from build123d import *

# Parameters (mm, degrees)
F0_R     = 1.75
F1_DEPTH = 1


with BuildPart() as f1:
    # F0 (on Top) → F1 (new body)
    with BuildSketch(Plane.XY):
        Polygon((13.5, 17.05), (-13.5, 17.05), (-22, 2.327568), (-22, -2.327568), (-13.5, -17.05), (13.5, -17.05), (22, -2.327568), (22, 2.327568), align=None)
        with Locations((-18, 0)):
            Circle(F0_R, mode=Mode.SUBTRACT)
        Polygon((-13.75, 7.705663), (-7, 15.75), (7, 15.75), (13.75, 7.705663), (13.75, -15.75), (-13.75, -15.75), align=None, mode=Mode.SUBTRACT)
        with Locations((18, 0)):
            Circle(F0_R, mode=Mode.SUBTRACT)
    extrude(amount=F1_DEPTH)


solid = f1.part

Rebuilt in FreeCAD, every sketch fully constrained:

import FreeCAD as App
import Part
import Sketcher
from FreeCAD import Vector
Q = App.Units.Quantity


def add_polygon(sketch, points):
    """Adds a closed chain of lines whose ends are joined by coincident constraints."""
    first, n = sketch.GeometryCount, len(points)
    for a, b in zip(points, points[1:] + points[:1]):
        sketch.addGeometry(Part.LineSegment(App.Vector(*a, 0), App.Vector(*b, 0)), False)
    for i in range(n):
        sketch.addConstraint(Sketcher.Constraint("Coincident", first + i, 2, first + (i + 1) % n, 1))

doc = App.newDocument("Part")
body = doc.addObject("PartDesign::Body", "Body")

sketch1 = body.newObject("Sketcher::SketchObject", "Sketch")
sketch1.AttachmentSupport = (doc.getObject("XY_Plane"), [""])
sketch1.MapMode = "FlatFace"
add_polygon(sketch1, [(13.5, 17.1), (-13.5, 17.1), (-22, 2.3), (-22, -2.3), (-13.5, -17.1), (13.5, -17.1), (22, -2.3), (22, 2.3)])
sketch1.addGeometry(Part.Circle(Vector(-18, 0, 0), Vector(0, 0, 1), 1.8), False)
add_polygon(sketch1, [(-13.8, -15.8), (-13.8, 7.7), (-7, 15.8), (7, 15.8), (13.8, 7.7), (13.8, -15.8)])
sketch1.addGeometry(Part.Circle(Vector(18, 0, 0), Vector(0, 0, 1), 1.8), False)
sketch1.addConstraint([
    Sketcher.Constraint("Horizontal", 0),
    Sketcher.Constraint("Vertical", 2),
    Sketcher.Constraint("Horizontal", 4),
    Sketcher.Constraint("Vertical", 6),
    Sketcher.Constraint("Vertical", 9),
    Sketcher.Constraint("Horizontal", 11),
    Sketcher.Constraint("Vertical", 13),
    Sketcher.Constraint("Horizontal", 14),
    Sketcher.Constraint("Equal", 8, 15),
    Sketcher.Constraint("Symmetric", 8, 3, 15, 3, -1, 1),
    Sketcher.Constraint("Symmetric", 0, 2, 4, 2, -1, 1),
    Sketcher.Constraint("Symmetric", 1, 2, 5, 2, -1, 1),
    Sketcher.Constraint("Symmetric", 9, 2, 12, 2, -2),
    Sketcher.Constraint("PointOnObject", 8, 3, -1),
    Sketcher.Constraint("Parallel", 3, 7),
    Sketcher.Constraint("Horizontal", 2, 2, 5, 2),
    Sketcher.Constraint("Horizontal", 1, 2, 6, 2),
    Sketcher.Constraint("Vertical", 0, 2, 3, 2),
    Sketcher.Constraint("Equal", 10, 12),
    Sketcher.Constraint("Diameter", 8, Q("3.5 mm")),
    Sketcher.Constraint("DistanceX", 0, 2, 0, 1, Q("27 mm")),
    Sketcher.Constraint("DistanceX", 11, 1, 11, 2, Q("14 mm")),
    Sketcher.Constraint("Angle", 1, Q("-120 deg")),
    Sketcher.Constraint("Angle", 10, Q("50.000001 deg")),
    Sketcher.Constraint("Distance", 1, Q("17 mm")),
    Sketcher.Constraint("DistanceX", 14, 2, 14, 1, Q("27.5 mm")),
    Sketcher.Constraint("DistanceX", 8, 3, -1, 1, Q("18 mm")),
    Sketcher.Constraint("DistanceY", 3, 2, 0, 2, Q("34.1 mm")),
    Sketcher.Constraint("DistanceY", 10, 2, 0, 2, Q("1.3 mm")),
    Sketcher.Constraint("DistanceY", 4, 2, 13, 2, Q("1.3 mm")),
])
pad1 = body.newObject("PartDesign::Pad", "Pad")
pad1.Profile = sketch1
pad1.Length = 1

doc.recompute()
